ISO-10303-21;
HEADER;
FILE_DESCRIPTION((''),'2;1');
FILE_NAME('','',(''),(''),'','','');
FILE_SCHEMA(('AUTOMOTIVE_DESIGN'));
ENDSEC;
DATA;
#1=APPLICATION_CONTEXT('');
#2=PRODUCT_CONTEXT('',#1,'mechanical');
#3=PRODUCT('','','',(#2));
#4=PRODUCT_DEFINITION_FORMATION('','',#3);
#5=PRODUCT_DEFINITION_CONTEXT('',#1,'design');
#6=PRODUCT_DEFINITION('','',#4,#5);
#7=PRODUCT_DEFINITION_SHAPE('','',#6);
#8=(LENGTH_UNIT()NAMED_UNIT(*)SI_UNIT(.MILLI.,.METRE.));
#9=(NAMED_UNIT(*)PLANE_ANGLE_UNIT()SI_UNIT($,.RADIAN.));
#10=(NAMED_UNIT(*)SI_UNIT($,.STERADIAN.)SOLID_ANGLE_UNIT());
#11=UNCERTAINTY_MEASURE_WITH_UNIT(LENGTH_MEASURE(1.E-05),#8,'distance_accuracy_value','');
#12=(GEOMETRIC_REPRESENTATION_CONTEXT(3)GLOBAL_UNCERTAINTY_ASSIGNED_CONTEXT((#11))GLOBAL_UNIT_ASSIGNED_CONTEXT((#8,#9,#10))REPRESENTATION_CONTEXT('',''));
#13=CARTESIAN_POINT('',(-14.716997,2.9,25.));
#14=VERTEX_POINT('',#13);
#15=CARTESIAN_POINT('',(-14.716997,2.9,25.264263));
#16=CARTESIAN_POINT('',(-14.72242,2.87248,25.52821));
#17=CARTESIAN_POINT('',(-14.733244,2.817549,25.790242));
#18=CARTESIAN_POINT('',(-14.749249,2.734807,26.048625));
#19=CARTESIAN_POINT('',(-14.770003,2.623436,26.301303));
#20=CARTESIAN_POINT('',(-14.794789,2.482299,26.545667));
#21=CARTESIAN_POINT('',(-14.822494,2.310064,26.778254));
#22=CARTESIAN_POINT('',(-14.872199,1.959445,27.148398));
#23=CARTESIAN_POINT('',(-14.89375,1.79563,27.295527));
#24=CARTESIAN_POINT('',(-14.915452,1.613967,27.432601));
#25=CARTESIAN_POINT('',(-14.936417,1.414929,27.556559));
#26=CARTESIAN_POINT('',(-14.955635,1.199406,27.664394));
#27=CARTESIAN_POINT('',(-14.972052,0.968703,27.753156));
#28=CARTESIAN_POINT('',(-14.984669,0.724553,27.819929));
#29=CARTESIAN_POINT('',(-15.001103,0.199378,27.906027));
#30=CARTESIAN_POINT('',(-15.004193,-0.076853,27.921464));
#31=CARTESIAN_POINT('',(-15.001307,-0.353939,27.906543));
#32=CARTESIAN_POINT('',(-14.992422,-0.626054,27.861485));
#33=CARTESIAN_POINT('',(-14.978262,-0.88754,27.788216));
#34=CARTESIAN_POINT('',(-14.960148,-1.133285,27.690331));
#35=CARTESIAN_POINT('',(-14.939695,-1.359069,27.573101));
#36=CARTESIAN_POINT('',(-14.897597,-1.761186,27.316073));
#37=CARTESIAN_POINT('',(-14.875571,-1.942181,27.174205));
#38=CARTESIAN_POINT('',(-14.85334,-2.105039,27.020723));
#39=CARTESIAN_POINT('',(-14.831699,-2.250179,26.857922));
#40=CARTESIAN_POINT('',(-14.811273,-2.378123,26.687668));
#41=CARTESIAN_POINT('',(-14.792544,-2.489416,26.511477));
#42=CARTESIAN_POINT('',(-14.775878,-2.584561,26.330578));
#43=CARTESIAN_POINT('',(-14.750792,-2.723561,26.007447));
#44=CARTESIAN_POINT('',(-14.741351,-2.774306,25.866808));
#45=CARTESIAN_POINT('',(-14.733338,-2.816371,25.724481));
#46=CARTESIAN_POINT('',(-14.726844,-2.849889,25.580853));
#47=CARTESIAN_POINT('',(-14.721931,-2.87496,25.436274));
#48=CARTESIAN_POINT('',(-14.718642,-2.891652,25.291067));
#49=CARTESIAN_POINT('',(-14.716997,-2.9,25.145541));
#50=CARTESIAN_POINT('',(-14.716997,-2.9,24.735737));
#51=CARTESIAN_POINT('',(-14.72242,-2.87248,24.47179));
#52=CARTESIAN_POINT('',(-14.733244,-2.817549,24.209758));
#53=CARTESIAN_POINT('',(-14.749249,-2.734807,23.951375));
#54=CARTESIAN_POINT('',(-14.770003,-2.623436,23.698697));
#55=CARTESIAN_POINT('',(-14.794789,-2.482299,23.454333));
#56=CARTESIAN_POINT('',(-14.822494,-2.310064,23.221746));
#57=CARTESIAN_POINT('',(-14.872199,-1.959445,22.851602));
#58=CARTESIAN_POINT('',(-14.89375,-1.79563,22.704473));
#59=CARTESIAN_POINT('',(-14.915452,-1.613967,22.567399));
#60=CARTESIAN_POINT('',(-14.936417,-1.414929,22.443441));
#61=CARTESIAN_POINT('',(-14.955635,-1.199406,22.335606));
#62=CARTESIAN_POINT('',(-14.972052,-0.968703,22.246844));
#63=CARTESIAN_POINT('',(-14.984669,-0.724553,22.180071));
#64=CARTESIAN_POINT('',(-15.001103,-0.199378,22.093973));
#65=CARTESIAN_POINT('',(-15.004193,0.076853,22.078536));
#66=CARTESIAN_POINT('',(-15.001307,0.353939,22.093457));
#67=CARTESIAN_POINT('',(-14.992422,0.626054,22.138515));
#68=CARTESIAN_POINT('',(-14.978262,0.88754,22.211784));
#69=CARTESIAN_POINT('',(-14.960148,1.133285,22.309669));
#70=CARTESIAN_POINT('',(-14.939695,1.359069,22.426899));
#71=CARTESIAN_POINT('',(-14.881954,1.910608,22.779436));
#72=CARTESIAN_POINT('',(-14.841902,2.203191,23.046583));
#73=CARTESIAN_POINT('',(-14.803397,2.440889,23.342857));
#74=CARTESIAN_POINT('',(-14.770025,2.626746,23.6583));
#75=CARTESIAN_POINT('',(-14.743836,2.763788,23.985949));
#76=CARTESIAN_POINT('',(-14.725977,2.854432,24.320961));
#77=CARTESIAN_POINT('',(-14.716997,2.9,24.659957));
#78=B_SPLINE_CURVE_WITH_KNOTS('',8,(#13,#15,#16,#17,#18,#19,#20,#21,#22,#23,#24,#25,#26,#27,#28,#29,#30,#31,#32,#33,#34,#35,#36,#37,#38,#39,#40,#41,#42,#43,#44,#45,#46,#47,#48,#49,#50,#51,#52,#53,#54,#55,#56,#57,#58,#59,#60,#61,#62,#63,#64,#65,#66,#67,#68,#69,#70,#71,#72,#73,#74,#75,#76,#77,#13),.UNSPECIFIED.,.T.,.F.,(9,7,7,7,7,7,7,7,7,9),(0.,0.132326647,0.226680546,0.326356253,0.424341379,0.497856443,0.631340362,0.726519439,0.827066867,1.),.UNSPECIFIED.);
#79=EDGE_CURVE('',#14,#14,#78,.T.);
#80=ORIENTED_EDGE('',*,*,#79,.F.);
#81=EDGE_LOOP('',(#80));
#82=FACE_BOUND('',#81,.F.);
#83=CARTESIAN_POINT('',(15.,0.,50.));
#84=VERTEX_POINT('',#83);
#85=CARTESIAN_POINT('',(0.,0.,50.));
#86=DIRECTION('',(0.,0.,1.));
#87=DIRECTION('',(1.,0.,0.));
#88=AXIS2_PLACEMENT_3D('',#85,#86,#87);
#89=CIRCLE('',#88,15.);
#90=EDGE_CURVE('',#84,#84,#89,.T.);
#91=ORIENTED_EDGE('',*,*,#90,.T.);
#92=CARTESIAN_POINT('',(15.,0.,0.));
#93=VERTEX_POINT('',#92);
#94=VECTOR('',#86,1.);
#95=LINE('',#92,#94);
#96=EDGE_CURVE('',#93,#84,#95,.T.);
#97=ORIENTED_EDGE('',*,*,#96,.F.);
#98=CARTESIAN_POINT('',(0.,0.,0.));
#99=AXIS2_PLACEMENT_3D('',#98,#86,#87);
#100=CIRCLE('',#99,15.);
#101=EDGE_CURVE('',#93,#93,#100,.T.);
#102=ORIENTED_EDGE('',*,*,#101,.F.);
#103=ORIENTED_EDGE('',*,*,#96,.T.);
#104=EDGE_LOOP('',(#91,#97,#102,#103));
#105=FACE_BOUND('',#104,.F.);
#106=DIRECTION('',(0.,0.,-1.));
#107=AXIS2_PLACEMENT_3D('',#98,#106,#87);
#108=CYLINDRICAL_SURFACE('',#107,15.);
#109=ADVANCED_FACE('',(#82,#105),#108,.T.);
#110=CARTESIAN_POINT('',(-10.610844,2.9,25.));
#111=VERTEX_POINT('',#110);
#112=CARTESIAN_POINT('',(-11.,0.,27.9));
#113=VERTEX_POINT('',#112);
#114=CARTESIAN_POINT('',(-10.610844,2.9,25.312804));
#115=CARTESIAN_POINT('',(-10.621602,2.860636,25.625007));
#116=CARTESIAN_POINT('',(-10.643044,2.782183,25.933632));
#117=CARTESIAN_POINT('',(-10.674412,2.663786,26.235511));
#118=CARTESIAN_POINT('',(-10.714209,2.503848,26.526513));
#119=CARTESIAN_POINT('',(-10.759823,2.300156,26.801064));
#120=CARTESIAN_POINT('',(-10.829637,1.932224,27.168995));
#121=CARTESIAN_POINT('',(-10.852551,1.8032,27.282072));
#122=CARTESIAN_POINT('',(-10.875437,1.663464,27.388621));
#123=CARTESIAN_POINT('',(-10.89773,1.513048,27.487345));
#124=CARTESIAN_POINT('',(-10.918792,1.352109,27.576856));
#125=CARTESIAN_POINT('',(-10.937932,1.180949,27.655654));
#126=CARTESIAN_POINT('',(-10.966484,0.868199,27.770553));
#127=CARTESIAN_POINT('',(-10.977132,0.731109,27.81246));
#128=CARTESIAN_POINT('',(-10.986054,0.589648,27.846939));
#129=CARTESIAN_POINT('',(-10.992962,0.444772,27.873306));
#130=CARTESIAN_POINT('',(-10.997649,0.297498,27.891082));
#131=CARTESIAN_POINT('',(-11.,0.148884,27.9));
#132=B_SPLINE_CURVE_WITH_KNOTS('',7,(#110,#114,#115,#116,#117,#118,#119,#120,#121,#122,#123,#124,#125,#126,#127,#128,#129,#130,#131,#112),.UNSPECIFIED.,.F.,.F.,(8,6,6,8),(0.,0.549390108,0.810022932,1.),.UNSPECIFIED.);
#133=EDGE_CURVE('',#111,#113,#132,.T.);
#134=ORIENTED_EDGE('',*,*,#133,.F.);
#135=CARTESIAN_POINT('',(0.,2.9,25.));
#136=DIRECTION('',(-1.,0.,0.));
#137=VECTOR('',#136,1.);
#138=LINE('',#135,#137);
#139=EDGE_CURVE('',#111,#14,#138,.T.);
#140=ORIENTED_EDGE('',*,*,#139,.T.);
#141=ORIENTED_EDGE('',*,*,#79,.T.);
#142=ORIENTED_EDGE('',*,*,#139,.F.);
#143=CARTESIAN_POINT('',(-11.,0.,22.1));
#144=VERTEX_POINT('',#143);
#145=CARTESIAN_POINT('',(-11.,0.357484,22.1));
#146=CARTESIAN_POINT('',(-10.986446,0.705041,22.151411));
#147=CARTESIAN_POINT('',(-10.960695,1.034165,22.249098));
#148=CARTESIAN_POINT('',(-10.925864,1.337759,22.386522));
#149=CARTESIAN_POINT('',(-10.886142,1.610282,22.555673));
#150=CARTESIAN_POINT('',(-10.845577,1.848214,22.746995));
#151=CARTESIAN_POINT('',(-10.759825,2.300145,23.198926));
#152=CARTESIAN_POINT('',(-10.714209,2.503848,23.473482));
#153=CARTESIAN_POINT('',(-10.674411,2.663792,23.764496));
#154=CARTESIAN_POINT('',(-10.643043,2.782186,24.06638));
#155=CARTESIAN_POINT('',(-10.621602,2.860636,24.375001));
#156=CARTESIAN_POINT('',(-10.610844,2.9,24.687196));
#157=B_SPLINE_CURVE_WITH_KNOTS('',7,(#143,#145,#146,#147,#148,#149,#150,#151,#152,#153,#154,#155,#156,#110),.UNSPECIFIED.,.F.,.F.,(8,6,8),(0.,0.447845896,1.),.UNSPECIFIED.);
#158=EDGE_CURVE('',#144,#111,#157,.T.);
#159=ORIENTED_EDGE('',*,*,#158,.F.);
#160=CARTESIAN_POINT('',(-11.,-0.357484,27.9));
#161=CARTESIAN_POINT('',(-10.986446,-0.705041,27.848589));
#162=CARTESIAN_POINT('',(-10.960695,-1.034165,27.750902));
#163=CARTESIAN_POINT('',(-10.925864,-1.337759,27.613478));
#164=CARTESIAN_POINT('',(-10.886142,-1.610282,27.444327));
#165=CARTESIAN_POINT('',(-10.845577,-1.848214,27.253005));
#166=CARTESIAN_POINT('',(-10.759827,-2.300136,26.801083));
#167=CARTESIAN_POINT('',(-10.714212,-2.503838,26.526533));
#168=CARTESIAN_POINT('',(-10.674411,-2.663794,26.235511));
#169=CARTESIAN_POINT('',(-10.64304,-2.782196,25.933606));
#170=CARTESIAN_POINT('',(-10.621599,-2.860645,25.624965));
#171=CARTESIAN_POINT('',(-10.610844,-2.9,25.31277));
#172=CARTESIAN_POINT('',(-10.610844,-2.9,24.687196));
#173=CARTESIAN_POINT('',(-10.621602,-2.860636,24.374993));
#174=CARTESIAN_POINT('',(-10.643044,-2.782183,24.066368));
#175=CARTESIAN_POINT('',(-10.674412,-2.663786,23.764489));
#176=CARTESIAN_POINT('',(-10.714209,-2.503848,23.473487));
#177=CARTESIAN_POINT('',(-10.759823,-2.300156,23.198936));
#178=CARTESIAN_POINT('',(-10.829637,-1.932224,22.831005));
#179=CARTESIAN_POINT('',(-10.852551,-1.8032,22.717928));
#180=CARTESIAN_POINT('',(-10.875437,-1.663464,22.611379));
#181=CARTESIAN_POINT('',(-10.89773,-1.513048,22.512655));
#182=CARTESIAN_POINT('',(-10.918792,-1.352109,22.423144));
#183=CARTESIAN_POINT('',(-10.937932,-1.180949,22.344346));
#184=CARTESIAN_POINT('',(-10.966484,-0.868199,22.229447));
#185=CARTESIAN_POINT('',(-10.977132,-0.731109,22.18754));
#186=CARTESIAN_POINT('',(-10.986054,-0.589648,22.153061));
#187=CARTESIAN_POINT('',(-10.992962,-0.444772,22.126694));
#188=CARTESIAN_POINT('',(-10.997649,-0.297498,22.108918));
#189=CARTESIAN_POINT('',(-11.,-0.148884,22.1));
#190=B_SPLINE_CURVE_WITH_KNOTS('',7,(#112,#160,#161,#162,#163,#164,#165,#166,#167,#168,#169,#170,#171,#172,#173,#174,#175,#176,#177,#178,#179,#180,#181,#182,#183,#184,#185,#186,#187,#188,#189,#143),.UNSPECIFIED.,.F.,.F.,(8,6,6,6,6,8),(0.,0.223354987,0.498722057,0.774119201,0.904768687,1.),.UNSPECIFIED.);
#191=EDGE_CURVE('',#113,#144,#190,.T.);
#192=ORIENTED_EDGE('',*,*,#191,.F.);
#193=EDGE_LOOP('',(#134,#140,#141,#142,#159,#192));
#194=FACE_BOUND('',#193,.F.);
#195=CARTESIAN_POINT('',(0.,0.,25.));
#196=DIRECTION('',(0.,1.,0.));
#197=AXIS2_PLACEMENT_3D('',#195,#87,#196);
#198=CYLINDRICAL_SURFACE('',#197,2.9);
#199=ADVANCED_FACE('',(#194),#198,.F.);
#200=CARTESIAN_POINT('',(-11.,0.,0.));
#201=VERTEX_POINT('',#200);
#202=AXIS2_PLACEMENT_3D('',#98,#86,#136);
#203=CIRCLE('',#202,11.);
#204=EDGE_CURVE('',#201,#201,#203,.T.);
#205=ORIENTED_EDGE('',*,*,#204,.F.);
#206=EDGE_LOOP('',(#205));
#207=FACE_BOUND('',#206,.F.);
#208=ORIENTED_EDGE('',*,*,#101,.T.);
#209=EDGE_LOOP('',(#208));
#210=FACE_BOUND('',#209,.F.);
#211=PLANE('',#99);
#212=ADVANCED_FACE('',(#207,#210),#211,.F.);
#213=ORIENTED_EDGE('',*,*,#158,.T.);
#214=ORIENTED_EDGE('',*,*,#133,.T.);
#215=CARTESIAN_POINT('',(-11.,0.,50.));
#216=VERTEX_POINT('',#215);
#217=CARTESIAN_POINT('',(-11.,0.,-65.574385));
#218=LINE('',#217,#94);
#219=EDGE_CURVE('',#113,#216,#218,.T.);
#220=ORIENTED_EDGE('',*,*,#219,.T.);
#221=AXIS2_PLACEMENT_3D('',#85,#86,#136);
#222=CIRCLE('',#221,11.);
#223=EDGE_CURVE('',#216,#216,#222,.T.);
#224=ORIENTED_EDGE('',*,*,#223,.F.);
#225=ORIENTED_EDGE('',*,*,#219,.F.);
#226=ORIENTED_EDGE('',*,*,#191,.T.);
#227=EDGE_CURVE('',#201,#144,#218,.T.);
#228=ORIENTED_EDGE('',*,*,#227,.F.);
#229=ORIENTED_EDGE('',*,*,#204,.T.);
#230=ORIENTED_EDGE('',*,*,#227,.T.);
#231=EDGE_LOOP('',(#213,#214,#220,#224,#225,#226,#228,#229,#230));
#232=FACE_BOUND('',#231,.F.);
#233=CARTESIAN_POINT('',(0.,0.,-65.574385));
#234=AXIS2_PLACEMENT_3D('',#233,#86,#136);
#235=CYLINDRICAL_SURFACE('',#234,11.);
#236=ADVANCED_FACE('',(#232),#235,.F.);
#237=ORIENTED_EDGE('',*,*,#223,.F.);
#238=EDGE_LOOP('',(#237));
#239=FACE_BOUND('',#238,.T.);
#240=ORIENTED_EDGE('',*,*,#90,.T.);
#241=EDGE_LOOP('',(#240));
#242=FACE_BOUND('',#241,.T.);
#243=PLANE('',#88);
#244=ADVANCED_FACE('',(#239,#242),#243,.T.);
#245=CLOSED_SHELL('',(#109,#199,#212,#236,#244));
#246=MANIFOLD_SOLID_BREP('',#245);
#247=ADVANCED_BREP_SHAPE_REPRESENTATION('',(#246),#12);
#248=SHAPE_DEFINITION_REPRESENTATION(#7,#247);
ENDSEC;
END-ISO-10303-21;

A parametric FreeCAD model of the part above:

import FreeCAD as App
import Part
import Sketcher
from FreeCAD import Vector

doc = App.newDocument("Part")
body = doc.addObject("PartDesign::Body", "Body")

sketch1 = body.newObject("Sketcher::SketchObject", "Sketch")
sketch1.AttachmentSupport = (doc.getObject("XY_Plane"), [""])
sketch1.MapMode = "FlatFace"
sketch1.addGeometry(Part.Circle(Vector(0, 0, 0), Vector(0, 0, 1), 15), False)
sketch1.addConstraint([
    Sketcher.Constraint("Coincident", 0, 3, -1, 1),
    Sketcher.Constraint("Diameter", 0, 30.0),
])
pad1 = body.newObject("PartDesign::Pad", "Pad")
pad1.Profile = sketch1
pad1.Length = 50

sketch2 = body.newObject("Sketcher::SketchObject", "Sketch001")
sketch2.AttachmentSupport = (doc.getObject("XY_Plane"), [""])
sketch2.MapMode = "FlatFace"
sketch2.addGeometry(Part.Circle(Vector(0, 0, 0), Vector(0, 0, 1), 11), False)
sketch2.addConstraint([
    Sketcher.Constraint("Coincident", 0, 3, -1, 1),
    Sketcher.Constraint("Diameter", 0, 22.0),
])
doc.recompute()
hole = body.newObject("PartDesign::Hole", "Hole")
hole.Profile = sketch2
hole.ThreadType = "None"
hole.Diameter = 22
hole.DepthType = "ThroughAll"
hole.Reversed = True

sketch3 = body.newObject("Sketcher::SketchObject", "Sketch002")
sketch3.AttachmentSupport = (doc.getObject("YZ_Plane"), [""])
sketch3.MapMode = "FlatFace"
sketch3.addGeometry(Part.Circle(Vector(0, 25, 0), Vector(0, 0, 1), 2.9), False)
sketch3.addConstraint([
    Sketcher.Constraint("PointOnObject", 0, 3, -2),
    Sketcher.Constraint("Diameter", 0, 5.8),
    Sketcher.Constraint("DistanceY", -1, 1, 0, 3, 25.0),
])
pocket1 = body.newObject("PartDesign::Pocket", "Pocket")
pocket1.Profile = sketch3
pocket1.Type = "ThroughAll"

doc.recompute()
